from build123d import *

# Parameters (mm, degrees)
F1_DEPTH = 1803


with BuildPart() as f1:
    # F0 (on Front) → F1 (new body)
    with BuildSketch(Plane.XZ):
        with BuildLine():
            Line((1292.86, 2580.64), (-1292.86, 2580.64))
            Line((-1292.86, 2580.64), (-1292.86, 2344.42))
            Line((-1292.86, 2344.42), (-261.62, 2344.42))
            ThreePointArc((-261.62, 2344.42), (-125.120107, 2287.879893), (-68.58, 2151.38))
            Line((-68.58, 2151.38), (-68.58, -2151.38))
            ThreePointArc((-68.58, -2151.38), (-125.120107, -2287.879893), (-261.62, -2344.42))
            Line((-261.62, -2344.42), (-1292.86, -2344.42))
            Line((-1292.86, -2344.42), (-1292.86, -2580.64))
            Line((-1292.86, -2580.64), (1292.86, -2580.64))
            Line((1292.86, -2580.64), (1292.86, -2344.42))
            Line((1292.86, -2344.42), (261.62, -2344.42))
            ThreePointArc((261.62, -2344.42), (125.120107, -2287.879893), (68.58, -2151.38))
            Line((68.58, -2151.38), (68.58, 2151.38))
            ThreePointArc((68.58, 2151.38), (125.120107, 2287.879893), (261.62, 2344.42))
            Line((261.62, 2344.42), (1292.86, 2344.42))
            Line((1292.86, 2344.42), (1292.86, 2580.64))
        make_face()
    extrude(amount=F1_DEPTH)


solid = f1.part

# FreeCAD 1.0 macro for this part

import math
import FreeCAD as App
import Part
import Sketcher

V = App.Vector
Q = App.Units.Quantity

doc = App.newDocument("Part")
params = doc.addObject("Spreadsheet::Sheet", "Params")
for row, (alias, value) in enumerate([
    ("sketch1_radius", "7.6 in"),
    ("sketch1_width", "101.8 in"),
    ("sketch1_width2", "40.6 in"),
    ("sketch1_height", "9.3 in"),
    ("sketch1_height2", "169.4 in"),
    ("pad1_length", "1803 mm"),
], start=1):
    params.set(f"A{row}", alias)
    params.set(f"B{row}", "=" + value)
    params.setAlias(f"B{row}", alias)

body = doc.addObject("PartDesign::Body", "Body")

sketch1 = body.newObject("Sketcher::SketchObject", "Sketch")
sketch1.AttachmentSupport = (doc.getObject("XZ_Plane"), [""])
sketch1.MapMode = "FlatFace"
sketch1.addGeometry(Part.LineSegment(V(1293, 2581, 0), V(-1293, 2581, 0)), False)
sketch1.addGeometry(Part.LineSegment(V(-1293, 2581, 0), V(-1293, 2344, 0)), False)
sketch1.addGeometry(Part.LineSegment(V(-1293, 2344, 0), V(-262, 2344, 0)), False)
sketch1.addGeometry(Part.ArcOfCircle(Part.Circle(V(-262, 2151, 0), V(0, 0, 1), 193), math.radians(0), math.radians(90)), False)
sketch1.addGeometry(Part.LineSegment(V(-69, 2151, 0), V(-69, -2151, 0)), False)
sketch1.addGeometry(Part.ArcOfCircle(Part.Circle(V(-262, -2151, 0), V(0, 0, 1), 193), math.radians(-90), math.radians(0)), False)
sketch1.addGeometry(Part.LineSegment(V(-262, -2344, 0), V(-1293, -2344, 0)), False)
sketch1.addGeometry(Part.LineSegment(V(-1293, -2344, 0), V(-1293, -2581, 0)), False)
sketch1.addGeometry(Part.LineSegment(V(-1293, -2581, 0), V(1293, -2581, 0)), False)
sketch1.addGeometry(Part.LineSegment(V(1293, -2581, 0), V(1293, -2344, 0)), False)
sketch1.addGeometry(Part.LineSegment(V(1293, -2344, 0), V(262, -2344, 0)), False)
sketch1.addGeometry(Part.ArcOfCircle(Part.Circle(V(262, -2151, 0), V(0, 0, 1), 193), math.radians(-180), math.radians(-90)), False)
sketch1.addGeometry(Part.LineSegment(V(69, -2151, 0), V(69, 2151, 0)), False)
sketch1.addGeometry(Part.ArcOfCircle(Part.Circle(V(262, 2151, 0), V(0, 0, 1), 193), math.radians(90), math.radians(180)), False)
sketch1.addGeometry(Part.LineSegment(V(262, 2344, 0), V(1293, 2344, 0)), False)
sketch1.addGeometry(Part.LineSegment(V(1293, 2344, 0), V(1293, 2581, 0)), False)
sketch1.addConstraint(Sketcher.Constraint("Coincident", 0, 2, 1, 1))
sketch1.addConstraint(Sketcher.Constraint("Coincident", 1, 2, 2, 1))
sketch1.addConstraint(Sketcher.Constraint("Tangent", 2, 2, 3, 2))
sketch1.addConstraint(Sketcher.Constraint("Tangent", 3, 1, 4, 1))
sketch1.addConstraint(Sketcher.Constraint("Tangent", 4, 2, 5, 2))
sketch1.addConstraint(Sketcher.Constraint("Tangent", 5, 1, 6, 1))
sketch1.addConstraint(Sketcher.Constraint("Coincident", 6, 2, 7, 1))
sketch1.addConstraint(Sketcher.Constraint("Coincident", 7, 2, 8, 1))
sketch1.addConstraint(Sketcher.Constraint("Coincident", 8, 2, 9, 1))
sketch1.addConstraint(Sketcher.Constraint("Coincident", 9, 2, 10, 1))
sketch1.addConstraint(Sketcher.Constraint("Tangent", 10, 2, 11, 2))
sketch1.addConstraint(Sketcher.Constraint("Tangent", 11, 1, 12, 1))
sketch1.addConstraint(Sketcher.Constraint("Tangent", 12, 2, 13, 2))
sketch1.addConstraint(Sketcher.Constraint("Tangent", 13, 1, 14, 1))
sketch1.addConstraint(Sketcher.Constraint("Coincident", 14, 2, 15, 1))
sketch1.addConstraint(Sketcher.Constraint("Coincident", 15, 2, 0, 1))
sketch1.addConstraint(Sketcher.Constraint("Horizontal", 0))
sketch1.addConstraint(Sketcher.Constraint("Vertical", 1))
sketch1.addConstraint(Sketcher.Constraint("Horizontal", 2))
sketch1.addConstraint(Sketcher.Constraint("Vertical", 4))
sketch1.addConstraint(Sketcher.Constraint("Horizontal", 6))
sketch1.addConstraint(Sketcher.Constraint("Vertical", 7))
sketch1.addConstraint(Sketcher.Constraint("Horizontal", 8))
sketch1.addConstraint(Sketcher.Constraint("Vertical", 9))
sketch1.addConstraint(Sketcher.Constraint("Horizontal", 10))
sketch1.addConstraint(Sketcher.Constraint("Vertical", 12))
sketch1.addConstraint(Sketcher.Constraint("Horizontal", 14))
sketch1.addConstraint(Sketcher.Constraint("Vertical", 15))
sketch1.addConstraint(Sketcher.Constraint("Equal", 3, 5))
sketch1.addConstraint(Sketcher.Constraint("Equal", 5, 11))
sketch1.addConstraint(Sketcher.Constraint("Equal", 11, 13))
sketch1.addConstraint(Sketcher.Constraint("Symmetric", 3, 3, 11, 3, -1, 1))
sketch1.addConstraint(Sketcher.Constraint("Symmetric", 0, 2, 8, 2, -1, 1))
sketch1.addConstraint(Sketcher.Constraint("Symmetric", 6, 2, 14, 2, -1, 1))
sketch1.addConstraint(Sketcher.Constraint("Symmetric", 6, 2, 9, 2, -2))
sketch1.addConstraint(Sketcher.Constraint("Radius", 3, Q("7.6 in")))
sketch1.addConstraint(Sketcher.Constraint("DistanceX", 0, 2, 0, 1, Q("101.8 in")))
sketch1.addConstraint(Sketcher.Constraint("DistanceX", 2, 1, 2, 2, Q("40.6 in")))
sketch1.addConstraint(Sketcher.Constraint("DistanceY", 1, 2, 1, 1, Q("9.3 in")))
sketch1.addConstraint(Sketcher.Constraint("DistanceY", 4, 2, 4, 1, Q("169.4 in")))
sketch1.setExpression("Constraints[35]", "Params.sketch1_radius")
sketch1.setExpression("Constraints[36]", "Params.sketch1_width")
sketch1.setExpression("Constraints[37]", "Params.sketch1_width2")
sketch1.setExpression("Constraints[38]", "Params.sketch1_height")
sketch1.setExpression("Constraints[39]", "Params.sketch1_height2")
pad1 = body.newObject("PartDesign::Pad", "Pad")
pad1.Profile = sketch1
pad1.setExpression("Length", "Params.pad1_length")

doc.recompute()
